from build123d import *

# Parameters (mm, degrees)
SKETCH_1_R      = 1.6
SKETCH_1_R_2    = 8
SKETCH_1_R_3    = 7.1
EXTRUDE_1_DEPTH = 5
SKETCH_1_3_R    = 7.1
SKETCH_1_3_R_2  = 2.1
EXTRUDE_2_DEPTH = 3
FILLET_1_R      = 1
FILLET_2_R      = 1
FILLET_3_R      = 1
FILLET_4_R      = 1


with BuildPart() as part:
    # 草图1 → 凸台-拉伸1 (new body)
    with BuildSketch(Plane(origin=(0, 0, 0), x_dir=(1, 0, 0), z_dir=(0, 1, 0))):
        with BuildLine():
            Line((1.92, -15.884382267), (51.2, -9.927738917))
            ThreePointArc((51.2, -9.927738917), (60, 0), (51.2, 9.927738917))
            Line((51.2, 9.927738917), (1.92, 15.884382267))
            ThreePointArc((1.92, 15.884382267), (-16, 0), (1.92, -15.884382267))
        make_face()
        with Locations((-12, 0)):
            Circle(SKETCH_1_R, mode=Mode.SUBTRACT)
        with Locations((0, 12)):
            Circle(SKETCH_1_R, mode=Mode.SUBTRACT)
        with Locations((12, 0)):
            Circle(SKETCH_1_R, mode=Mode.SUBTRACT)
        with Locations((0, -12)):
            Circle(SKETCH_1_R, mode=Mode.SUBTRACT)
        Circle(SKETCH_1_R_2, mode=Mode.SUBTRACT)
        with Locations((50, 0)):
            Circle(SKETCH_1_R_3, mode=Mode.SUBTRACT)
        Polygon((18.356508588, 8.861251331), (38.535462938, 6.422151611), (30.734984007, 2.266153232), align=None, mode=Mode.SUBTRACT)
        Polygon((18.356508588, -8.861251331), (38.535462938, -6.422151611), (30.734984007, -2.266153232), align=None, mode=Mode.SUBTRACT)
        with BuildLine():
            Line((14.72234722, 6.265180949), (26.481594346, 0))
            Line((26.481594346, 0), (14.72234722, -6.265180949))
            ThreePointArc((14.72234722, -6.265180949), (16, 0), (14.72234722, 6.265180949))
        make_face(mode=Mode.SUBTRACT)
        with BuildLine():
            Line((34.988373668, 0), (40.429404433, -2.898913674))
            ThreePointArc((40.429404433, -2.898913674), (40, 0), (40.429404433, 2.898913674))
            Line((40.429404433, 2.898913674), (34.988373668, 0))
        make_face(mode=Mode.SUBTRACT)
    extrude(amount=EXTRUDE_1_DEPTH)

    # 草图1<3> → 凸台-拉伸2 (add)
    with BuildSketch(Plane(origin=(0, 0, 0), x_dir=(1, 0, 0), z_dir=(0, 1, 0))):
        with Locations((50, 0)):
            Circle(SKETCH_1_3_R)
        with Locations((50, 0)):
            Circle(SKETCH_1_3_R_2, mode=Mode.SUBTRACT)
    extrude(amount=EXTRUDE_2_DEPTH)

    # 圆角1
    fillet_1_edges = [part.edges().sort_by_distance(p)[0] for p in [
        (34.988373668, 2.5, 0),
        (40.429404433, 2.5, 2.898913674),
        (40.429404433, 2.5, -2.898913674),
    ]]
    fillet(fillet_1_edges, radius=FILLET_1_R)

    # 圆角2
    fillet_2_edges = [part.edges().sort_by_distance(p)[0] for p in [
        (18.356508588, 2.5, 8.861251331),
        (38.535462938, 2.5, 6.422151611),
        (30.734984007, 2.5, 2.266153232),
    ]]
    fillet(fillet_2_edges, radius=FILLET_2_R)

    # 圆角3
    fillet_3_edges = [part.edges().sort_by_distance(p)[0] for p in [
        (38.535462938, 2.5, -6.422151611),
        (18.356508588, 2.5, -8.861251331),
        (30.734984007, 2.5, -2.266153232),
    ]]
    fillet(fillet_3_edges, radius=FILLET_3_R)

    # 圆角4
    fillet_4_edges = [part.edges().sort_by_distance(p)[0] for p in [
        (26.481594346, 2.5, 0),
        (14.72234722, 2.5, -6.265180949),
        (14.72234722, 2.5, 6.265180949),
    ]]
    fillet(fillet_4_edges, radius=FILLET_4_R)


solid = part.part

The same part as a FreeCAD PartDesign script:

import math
import FreeCAD as App
import Part
import Sketcher
Q = App.Units.Quantity


def edges_at(feature, points):
    """Names of the edges that pass closest to the given points."""
    edges = feature.Shape.Edges
    near = lambda p: min(range(len(edges)), key=lambda i: edges[i].distToShape(Part.Vertex(*p))[0])
    return sorted({f"Edge{near(p) + 1}" for p in points})

doc = App.newDocument("Part")
params = doc.addObject("Spreadsheet::Sheet", "Params")
for row, (alias, value) in enumerate([
    ("sketch1_diameter", "16 mm"),
    ("sketch1_radius", "10 mm"),
    ("sketch1_radius2", "16 mm"),
    ("sketch1_diameter2", "3.2 mm"),
    ("sketch1_diameter3", "14.2 mm"),
    ("pad1_length", "5 mm"),
    ("sketch2_diameter", "14.2 mm"),
    ("sketch2_diameter2", "4.2 mm"),
    ("pad2_length", "3 mm"),
    ("fillet_radius", "1 mm"),
    ("fillet2_radius", "1 mm"),
    ("fillet3_radius", "1 mm"),
    ("fillet4_radius", "1 mm"),
], start=1):
    params.set(f"A{row}", alias)
    params.set(f"B{row}", "=" + value)
    params.setAlias(f"B{row}", alias)

body = doc.addObject("PartDesign::Body", "Body")

# Sketch on XZ plane
sketch1 = body.newObject("Sketcher::SketchObject", "Sketch")
sketch1.AttachmentSupport = (doc.getObject("XZ_Plane"), [""])
sketch1.MapMode = "FlatFace"
sketch1.addGeometry(Part.LineSegment(App.Vector(1.9, 15.9, 0), App.Vector(51.2, 9.9, 0)), False)
sketch1.addGeometry(Part.ArcOfCircle(Part.Circle(App.Vector(50, 0, 0), App.Vector(0, 0, 1), 10), math.radians(-83), math.radians(83)), False)
sketch1.addGeometry(Part.LineSegment(App.Vector(51.2, -9.9, 0), App.Vector(1.9, -15.9, 0)), False)
sketch1.addGeometry(Part.ArcOfCircle(Part.Circle(App.Vector(0, 0, 0), App.Vector(0, 0, 1), 16), math.radians(83), math.radians(277)), False)
sketch1.addGeometry(Part.Circle(App.Vector(0, 12, 0), App.Vector(0, 0, 1), 1.6), False)
sketch1.addGeometry(Part.ArcOfCircle(Part.Circle(App.Vector(0, 0, 0), App.Vector(0, 0, 1), 16), math.radians(-23), math.radians(23)), False)
sketch1.addGeometry(Part.LineSegment(App.Vector(14.7, -6.3, 0), App.Vector(26.5, 0, 0)), False)
sketch1.addGeometry(Part.LineSegment(App.Vector(26.5, 0, 0), App.Vector(14.7, 6.3, 0)), False)
sketch1.addGeometry(Part.LineSegment(App.Vector(38.5, 6.4, 0), App.Vector(18.4, 8.9, 0)), False)
sketch1.addGeometry(Part.LineSegment(App.Vector(18.4, 8.9, 0), App.Vector(30.7, 2.3, 0)), False)
sketch1.addGeometry(Part.LineSegment(App.Vector(30.7, 2.3, 0), App.Vector(38.5, 6.4, 0)), False)
sketch1.addGeometry(Part.Circle(App.Vector(50, 0, 0), App.Vector(0, 0, 1), 7.1), False)
sketch1.addGeometry(Part.Circle(App.Vector(-12, 0, 0), App.Vector(0, 0, 1), 1.6), False)
sketch1.addGeometry(Part.Circle(App.Vector(0, 0, 0), App.Vector(0, 0, 1), 8), False)
sketch1.addGeometry(Part.Circle(App.Vector(12, 0, 0), App.Vector(0, 0, 1), 1.6), False)
sketch1.addGeometry(Part.Circle(App.Vector(0, -12, 0), App.Vector(0, 0, 1), 1.6), False)
sketch1.addGeometry(Part.LineSegment(App.Vector(40.4, 2.9, 0), App.Vector(35, 0, 0)), False)
sketch1.addGeometry(Part.LineSegment(App.Vector(35, 0, 0), App.Vector(40.4, -2.9, 0)), False)
sketch1.addGeometry(Part.ArcOfCircle(Part.Circle(App.Vector(50, 0, 0), App.Vector(0, 0, 1), 10), math.radians(163), math.radians(197)), False)
sketch1.addGeometry(Part.LineSegment(App.Vector(30.7, -2.3, 0), App.Vector(18.4, -8.9, 0)), False)
sketch1.addGeometry(Part.LineSegment(App.Vector(18.4, -8.9, 0), App.Vector(38.5, -6.4, 0)), False)
sketch1.addGeometry(Part.LineSegment(App.Vector(38.5, -6.4, 0), App.Vector(30.7, -2.3, 0)), False)
sketch1.addConstraint(Sketcher.Constraint("Tangent", 0, 2, 1, 2))
sketch1.addConstraint(Sketcher.Constraint("Tangent", 1, 1, 2, 1))
sketch1.addConstraint(Sketcher.Constraint("Tangent", 2, 2, 3, 2))
sketch1.addConstraint(Sketcher.Constraint("Tangent", 3, 1, 0, 1))
sketch1.addConstraint(Sketcher.Constraint("Coincident", 5, 1, 6, 1))
sketch1.addConstraint(Sketcher.Constraint("Coincident", 6, 2, 7, 1))
sketch1.addConstraint(Sketcher.Constraint("Coincident", 7, 2, 5, 2))
sketch1.addConstraint(Sketcher.Constraint("Coincident", 8, 2, 9, 1))
sketch1.addConstraint(Sketcher.Constraint("Coincident", 9, 2, 10, 1))
sketch1.addConstraint(Sketcher.Constraint("Coincident", 10, 2, 8, 1))
sketch1.addConstraint(Sketcher.Constraint("Coincident", 16, 2, 17, 1))
sketch1.addConstraint(Sketcher.Constraint("Coincident", 17, 2, 18, 2))
sketch1.addConstraint(Sketcher.Constraint("Coincident", 18, 1, 16, 1))
sketch1.addConstraint(Sketcher.Constraint("Coincident", 19, 2, 20, 1))
sketch1.addConstraint(Sketcher.Constraint("Coincident", 20, 2, 21, 1))
sketch1.addConstraint(Sketcher.Constraint("Coincident", 21, 2, 19, 1))
sketch1.addConstraint(Sketcher.Constraint("Coincident", 3, 3, -1, 1))
sketch1.addConstraint(Sketcher.Constraint("Coincident", 5, 3, -1, 1))
sketch1.addConstraint(Sketcher.Constraint("Coincident", 13, 3, -1, 1))
sketch1.addConstraint(Sketcher.Constraint("Coincident", 11, 3, 1, 3))
sketch1.addConstraint(Sketcher.Constraint("Coincident", 18, 3, 1, 3))
sketch1.addConstraint(Sketcher.Constraint("Equal", 3, 5))
sketch1.addConstraint(Sketcher.Constraint("Equal", 4, 12))
sketch1.addConstraint(Sketcher.Constraint("Equal", 12, 14))
sketch1.addConstraint(Sketcher.Constraint("Equal", 14, 15))
sketch1.addConstraint(Sketcher.Constraint("Equal", 1, 18))
sketch1.addConstraint(Sketcher.Constraint("Symmetric", 12, 3, 14, 3, -1, 1))
sketch1.addConstraint(Sketcher.Constraint("Symmetric", 4, 3, 15, 3, -1, 1))
sketch1.addConstraint(Sketcher.Constraint("Symmetric", 17, 2, 18, 1, -1))
sketch1.addConstraint(Sketcher.Constraint("Symmetric", 8, 2, 19, 2, -1))
sketch1.addConstraint(Sketcher.Constraint("Symmetric", 10, 2, 20, 2, -1))
sketch1.addConstraint(Sketcher.Constraint("Symmetric", 9, 2, 21, 2, -1))
sketch1.addConstraint(Sketcher.Constraint("PointOnObject", 4, 3, -2))
sketch1.addConstraint(Sketcher.Constraint("PointOnObject", 12, 3, -1))
sketch1.addConstraint(Sketcher.Constraint("PointOnObject", 6, 2, -1))
sketch1.addConstraint(Sketcher.Constraint("PointOnObject", 16, 2, -1))
sketch1.addConstraint(Sketcher.Constraint("Parallel", 0, 8))
sketch1.addConstraint(Sketcher.Constraint("Parallel", 7, 9))
sketch1.addConstraint(Sketcher.Constraint("Parallel", 6, 10))
sketch1.addConstraint(Sketcher.Constraint("Parallel", 10, 16))
sketch1.addConstraint(Sketcher.Constraint("Parallel", 9, 17))
sketch1.addConstraint(Sketcher.Constraint("Diameter", 13, Q("16 mm")))
sketch1.addConstraint(Sketcher.Constraint("Radius", 1, Q("10 mm")))
sketch1.addConstraint(Sketcher.Constraint("Radius", 3, Q("16 mm")))
sketch1.addConstraint(Sketcher.Constraint("Diameter", 4, Q("3.2 mm")))
sketch1.addConstraint(Sketcher.Constraint("Diameter", 11, Q("14.2 mm")))
sketch1.addConstraint(Sketcher.Constraint("DistanceX", -1, 1, 1, 3, Q("50 mm")))
sketch1.addConstraint(Sketcher.Constraint("DistanceY", -1, 1, 4, 3, Q("12 mm")))
sketch1.addConstraint(Sketcher.Constraint("DistanceX", 12, 3, -1, 1, Q("12 mm")))
sketch1.addConstraint(Sketcher.Constraint("DistanceY", 9, 2, 10, 2, Q("4.155998 mm")))
sketch1.addConstraint(Sketcher.Constraint("DistanceY", 9, 2, 8, 2, Q("6.595098 mm")))
sketch1.addConstraint(Sketcher.Constraint("DistanceY", 5, 1, -1, 1, Q("6.265181 mm")))
sketch1.addConstraint(Sketcher.Constraint("DistanceX", -1, 1, 8, 2, Q("18.356509 mm")))
sketch1.addConstraint(Sketcher.Constraint("DistanceY", -1, 1, 8, 2, Q("8.861251 mm")))
sketch1.addConstraint(Sketcher.Constraint("DistanceX", 9, 2, 16, 2, Q("4.25339 mm")))
sketch1.setExpression("Constraints[41]", "Params.sketch1_diameter")
sketch1.setExpression("Constraints[42]", "Params.sketch1_radius")
sketch1.setExpression("Constraints[43]", "Params.sketch1_radius2")
sketch1.setExpression("Constraints[44]", "Params.sketch1_diameter2")
sketch1.setExpression("Constraints[45]", "Params.sketch1_diameter3")
pad1 = body.newObject("PartDesign::Pad", "Pad")
pad1.Profile = sketch1
pad1.setExpression("Length", "Params.pad1_length")
pad1.Reversed = True

# Sketch on XZ plane
sketch2 = body.newObject("Sketcher::SketchObject", "Sketch001")
sketch2.AttachmentSupport = (doc.getObject("XZ_Plane"), [""])
sketch2.MapMode = "FlatFace"
sketch2.addGeometry(Part.Circle(App.Vector(50, 0, 0), App.Vector(0, 0, 1), 7.1), False)
sketch2.addGeometry(Part.Circle(App.Vector(50, 0, 0), App.Vector(0, 0, 1), 2.1), False)
sketch2.addConstraint(Sketcher.Constraint("Coincident", 1, 3, 0, 3))
sketch2.addConstraint(Sketcher.Constraint("PointOnObject", 0, 3, -1))
sketch2.addConstraint(Sketcher.Constraint("Diameter", 0, Q("14.2 mm")))
sketch2.addConstraint(Sketcher.Constraint("Diameter", 1, Q("4.2 mm")))
sketch2.addConstraint(Sketcher.Constraint("DistanceX", -1, 1, 0, 3, Q("50 mm")))
sketch2.setExpression("Constraints[2]", "Params.sketch2_diameter")
sketch2.setExpression("Constraints[3]", "Params.sketch2_diameter2")
pad2 = body.newObject("PartDesign::Pad", "Pad001")
pad2.Profile = sketch2
pad2.setExpression("Length", "Params.pad2_length")
pad2.Reversed = True
doc.recompute()

fillet = body.newObject("PartDesign::Fillet", "Fillet")
fillet.Base = (pad2, edges_at(pad2, [(34.988, 2.5, 0), (40.429, 2.5, 2.899), (40.429, 2.5, -2.899)]))
fillet.setExpression("Radius", "Params.fillet_radius")
doc.recompute()

fillet2 = body.newObject("PartDesign::Fillet", "Fillet001")
fillet2.Base = (fillet, edges_at(fillet, [(18.357, 2.5, 8.861), (38.535, 2.5, 6.422), (30.735, 2.5, 2.266)]))
fillet2.setExpression("Radius", "Params.fillet2_radius")
doc.recompute()

fillet3 = body.newObject("PartDesign::Fillet", "Fillet002")
fillet3.Base = (fillet2, edges_at(fillet2, [(38.535, 2.5, -6.422), (18.357, 2.5, -8.861), (30.735, 2.5, -2.266)]))
fillet3.setExpression("Radius", "Params.fillet3_radius")
doc.recompute()

fillet4 = body.newObject("PartDesign::Fillet", "Fillet003")
fillet4.Base = (fillet3, edges_at(fillet3, [(26.482, 2.5, 0), (14.722, 2.5, -6.265), (14.722, 2.5, 6.265)]))
fillet4.setExpression("Radius", "Params.fillet4_radius")

doc.recompute()
